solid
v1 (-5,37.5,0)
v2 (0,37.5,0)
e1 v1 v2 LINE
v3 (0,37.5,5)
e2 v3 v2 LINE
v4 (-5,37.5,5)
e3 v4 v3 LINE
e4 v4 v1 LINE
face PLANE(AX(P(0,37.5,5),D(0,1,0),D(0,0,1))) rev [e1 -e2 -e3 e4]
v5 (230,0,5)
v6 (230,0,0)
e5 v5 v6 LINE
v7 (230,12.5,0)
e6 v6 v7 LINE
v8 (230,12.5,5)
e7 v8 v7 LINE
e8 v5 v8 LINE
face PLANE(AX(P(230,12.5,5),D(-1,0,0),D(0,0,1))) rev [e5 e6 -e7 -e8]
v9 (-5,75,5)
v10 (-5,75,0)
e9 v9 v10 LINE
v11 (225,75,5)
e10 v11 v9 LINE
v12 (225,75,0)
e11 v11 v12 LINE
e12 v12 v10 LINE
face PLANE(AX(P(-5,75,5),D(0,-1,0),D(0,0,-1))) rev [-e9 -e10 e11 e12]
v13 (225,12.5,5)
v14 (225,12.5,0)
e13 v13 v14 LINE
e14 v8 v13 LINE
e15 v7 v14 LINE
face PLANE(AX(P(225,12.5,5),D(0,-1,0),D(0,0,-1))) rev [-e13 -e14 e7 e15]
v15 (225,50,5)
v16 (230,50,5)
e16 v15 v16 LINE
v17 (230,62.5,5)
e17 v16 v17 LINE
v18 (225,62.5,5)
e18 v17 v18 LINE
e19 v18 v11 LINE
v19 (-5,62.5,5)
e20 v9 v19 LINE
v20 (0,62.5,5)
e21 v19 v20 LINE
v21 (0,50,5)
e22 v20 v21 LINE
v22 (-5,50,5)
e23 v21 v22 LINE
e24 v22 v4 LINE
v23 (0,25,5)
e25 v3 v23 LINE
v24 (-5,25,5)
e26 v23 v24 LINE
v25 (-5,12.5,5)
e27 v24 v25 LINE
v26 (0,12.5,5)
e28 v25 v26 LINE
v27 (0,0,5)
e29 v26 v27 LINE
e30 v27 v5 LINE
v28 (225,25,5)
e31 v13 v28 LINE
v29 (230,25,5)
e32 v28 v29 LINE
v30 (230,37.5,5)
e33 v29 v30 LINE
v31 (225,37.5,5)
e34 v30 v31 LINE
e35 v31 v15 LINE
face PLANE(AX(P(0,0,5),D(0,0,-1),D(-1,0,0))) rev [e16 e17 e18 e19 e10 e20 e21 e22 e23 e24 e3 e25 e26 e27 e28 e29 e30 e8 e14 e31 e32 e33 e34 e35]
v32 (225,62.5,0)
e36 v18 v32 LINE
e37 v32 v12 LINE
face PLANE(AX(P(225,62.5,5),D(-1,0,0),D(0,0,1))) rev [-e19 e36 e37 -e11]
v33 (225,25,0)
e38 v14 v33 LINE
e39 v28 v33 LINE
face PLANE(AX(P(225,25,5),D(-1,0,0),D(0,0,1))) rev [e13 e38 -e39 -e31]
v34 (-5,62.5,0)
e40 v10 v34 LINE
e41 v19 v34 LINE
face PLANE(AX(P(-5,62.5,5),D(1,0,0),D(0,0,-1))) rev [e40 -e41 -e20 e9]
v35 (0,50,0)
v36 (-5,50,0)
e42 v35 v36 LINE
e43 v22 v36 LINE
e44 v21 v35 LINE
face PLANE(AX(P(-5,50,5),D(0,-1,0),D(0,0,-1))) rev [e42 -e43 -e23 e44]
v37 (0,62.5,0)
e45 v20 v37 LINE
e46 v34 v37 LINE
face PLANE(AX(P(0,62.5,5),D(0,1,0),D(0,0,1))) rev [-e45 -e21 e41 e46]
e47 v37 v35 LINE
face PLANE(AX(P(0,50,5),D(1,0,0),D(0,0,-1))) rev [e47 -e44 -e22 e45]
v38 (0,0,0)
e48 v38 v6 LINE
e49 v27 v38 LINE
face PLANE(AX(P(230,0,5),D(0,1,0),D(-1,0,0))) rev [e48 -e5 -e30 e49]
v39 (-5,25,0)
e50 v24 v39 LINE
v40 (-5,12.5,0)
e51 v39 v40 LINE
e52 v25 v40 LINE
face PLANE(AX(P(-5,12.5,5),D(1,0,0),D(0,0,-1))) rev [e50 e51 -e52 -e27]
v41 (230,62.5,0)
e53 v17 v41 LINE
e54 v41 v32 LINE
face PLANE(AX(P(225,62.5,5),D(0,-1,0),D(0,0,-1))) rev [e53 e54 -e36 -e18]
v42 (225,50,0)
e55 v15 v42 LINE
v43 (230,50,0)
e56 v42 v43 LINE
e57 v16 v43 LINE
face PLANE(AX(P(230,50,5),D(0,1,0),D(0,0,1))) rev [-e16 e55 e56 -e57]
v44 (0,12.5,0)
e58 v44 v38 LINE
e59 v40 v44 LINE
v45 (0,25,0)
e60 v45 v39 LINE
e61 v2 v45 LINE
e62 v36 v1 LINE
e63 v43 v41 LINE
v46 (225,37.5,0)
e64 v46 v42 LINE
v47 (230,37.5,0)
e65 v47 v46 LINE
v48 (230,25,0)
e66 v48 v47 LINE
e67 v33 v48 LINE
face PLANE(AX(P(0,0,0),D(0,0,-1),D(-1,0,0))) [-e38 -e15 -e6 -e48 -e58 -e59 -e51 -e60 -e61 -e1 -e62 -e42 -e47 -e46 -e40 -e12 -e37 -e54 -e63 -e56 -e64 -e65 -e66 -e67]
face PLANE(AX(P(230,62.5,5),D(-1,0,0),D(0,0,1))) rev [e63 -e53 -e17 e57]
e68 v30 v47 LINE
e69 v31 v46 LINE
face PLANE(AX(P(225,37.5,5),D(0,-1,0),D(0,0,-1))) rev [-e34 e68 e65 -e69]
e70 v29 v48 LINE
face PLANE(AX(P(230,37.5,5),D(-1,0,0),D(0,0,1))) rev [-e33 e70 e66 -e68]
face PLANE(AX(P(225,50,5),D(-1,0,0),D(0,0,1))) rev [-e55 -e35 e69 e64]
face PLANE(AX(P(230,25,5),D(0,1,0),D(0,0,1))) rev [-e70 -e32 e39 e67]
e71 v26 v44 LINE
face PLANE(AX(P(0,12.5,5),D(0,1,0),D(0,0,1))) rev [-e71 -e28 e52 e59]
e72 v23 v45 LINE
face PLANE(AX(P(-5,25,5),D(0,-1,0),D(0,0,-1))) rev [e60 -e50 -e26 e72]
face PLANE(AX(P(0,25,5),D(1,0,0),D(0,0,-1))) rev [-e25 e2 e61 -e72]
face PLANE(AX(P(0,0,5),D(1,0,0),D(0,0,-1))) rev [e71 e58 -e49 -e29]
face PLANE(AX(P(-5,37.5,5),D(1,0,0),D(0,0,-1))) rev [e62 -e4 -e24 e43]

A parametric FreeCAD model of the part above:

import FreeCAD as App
import Part
import Sketcher
from FreeCAD import Vector

doc = App.newDocument("Part")
body = doc.addObject("PartDesign::Body", "Body")

# Sketch on XY plane
sketch1 = body.newObject("Sketcher::SketchObject", "Sketch")
sketch1.AttachmentSupport = (doc.getObject("XY_Plane"), [""])
sketch1.MapMode = "FlatFace"
sketch1.addGeometry([
    Part.LineSegment(Vector(0, 12, 0), Vector(0, 0, 0)),  # 0
    Part.LineSegment(Vector(0, 0, 0), Vector(230, 0, 0)),  # 1
    Part.LineSegment(Vector(230, 0, 0), Vector(230, 12, 0)),  # 2
    Part.LineSegment(Vector(230, 12, 0), Vector(225, 12, 0)),  # 3
    Part.LineSegment(Vector(225, 12, 0), Vector(225, 25, 0)),  # 4
    Part.LineSegment(Vector(225, 25, 0), Vector(230, 25, 0)),  # 5
    Part.LineSegment(Vector(230, 25, 0), Vector(230, 38, 0)),  # 6
    Part.LineSegment(Vector(230, 38, 0), Vector(225, 38, 0)),  # 7
    Part.LineSegment(Vector(225, 38, 0), Vector(225, 50, 0)),  # 8
    Part.LineSegment(Vector(225, 50, 0), Vector(230, 50, 0)),  # 9
    Part.LineSegment(Vector(230, 50, 0), Vector(230, 62, 0)),  # 10
    Part.LineSegment(Vector(230, 62, 0), Vector(225, 62, 0)),  # 11
    Part.LineSegment(Vector(225, 62, 0), Vector(225, 75, 0)),  # 12
    Part.LineSegment(Vector(225, 75, 0), Vector(-5, 75, 0)),  # 13
    Part.LineSegment(Vector(-5, 75, 0), Vector(-5, 62, 0)),  # 14
    Part.LineSegment(Vector(-5, 62, 0), Vector(0, 62, 0)),  # 15
    Part.LineSegment(Vector(0, 62, 0), Vector(0, 50, 0)),  # 16
    Part.LineSegment(Vector(0, 50, 0), Vector(-5, 50, 0)),  # 17
    Part.LineSegment(Vector(-5, 50, 0), Vector(-5, 38, 0)),  # 18
    Part.LineSegment(Vector(-5, 38, 0), Vector(0, 38, 0)),  # 19
    Part.LineSegment(Vector(0, 38, 0), Vector(0, 25, 0)),  # 20
    Part.LineSegment(Vector(0, 25, 0), Vector(-5, 25, 0)),  # 21
    Part.LineSegment(Vector(-5, 25, 0), Vector(-5, 12, 0)),  # 22
    Part.LineSegment(Vector(-5, 12, 0), Vector(0, 12, 0)),  # 23
], False)
sketch1.addConstraint([
    Sketcher.Constraint("Coincident", 0, 2, 1, 1),
    Sketcher.Constraint("Coincident", 1, 2, 2, 1),
    Sketcher.Constraint("Coincident", 2, 2, 3, 1),
    Sketcher.Constraint("Coincident", 3, 2, 4, 1),
    Sketcher.Constraint("Coincident", 4, 2, 5, 1),
    Sketcher.Constraint("Coincident", 5, 2, 6, 1),
    Sketcher.Constraint("Coincident", 6, 2, 7, 1),
    Sketcher.Constraint("Coincident", 7, 2, 8, 1),
    Sketcher.Constraint("Coincident", 8, 2, 9, 1),
    Sketcher.Constraint("Coincident", 9, 2, 10, 1),
    Sketcher.Constraint("Coincident", 10, 2, 11, 1),
    Sketcher.Constraint("Coincident", 11, 2, 12, 1),
    Sketcher.Constraint("Coincident", 12, 2, 13, 1),
    Sketcher.Constraint("Coincident", 13, 2, 14, 1),
    Sketcher.Constraint("Coincident", 14, 2, 15, 1),
    Sketcher.Constraint("Coincident", 15, 2, 16, 1),
    Sketcher.Constraint("Coincident", 16, 2, 17, 1),
    Sketcher.Constraint("Coincident", 17, 2, 18, 1),
    Sketcher.Constraint("Coincident", 18, 2, 19, 1),
    Sketcher.Constraint("Coincident", 19, 2, 20, 1),
    Sketcher.Constraint("Coincident", 20, 2, 21, 1),
    Sketcher.Constraint("Coincident", 21, 2, 22, 1),
    Sketcher.Constraint("Coincident", 22, 2, 23, 1),
    Sketcher.Constraint("Coincident", 23, 2, 0, 1),
    Sketcher.Constraint("Vertical", 0),
    Sketcher.Constraint("Horizontal", 1),
    Sketcher.Constraint("Vertical", 2),
    Sketcher.Constraint("Horizontal", 3),
    Sketcher.Constraint("Vertical", 4),
    Sketcher.Constraint("Horizontal", 5),
    Sketcher.Constraint("Vertical", 6),
    Sketcher.Constraint("Horizontal", 7),
    Sketcher.Constraint("Vertical", 8),
    Sketcher.Constraint("Horizontal", 9),
    Sketcher.Constraint("Vertical", 10),
    Sketcher.Constraint("Horizontal", 11),
    Sketcher.Constraint("Vertical", 12),
    Sketcher.Constraint("Horizontal", 13),
    Sketcher.Constraint("Vertical", 14),
    Sketcher.Constraint("Horizontal", 15),
    Sketcher.Constraint("Vertical", 16),
    Sketcher.Constraint("Horizontal", 17),
    Sketcher.Constraint("Vertical", 18),
    Sketcher.Constraint("Horizontal", 19),
    Sketcher.Constraint("Vertical", 20),
    Sketcher.Constraint("Horizontal", 21),
    Sketcher.Constraint("Vertical", 22),
    Sketcher.Constraint("Horizontal", 23),
    Sketcher.Constraint("Coincident", 0, 2, -1, 1),
    Sketcher.Constraint("PointOnObject", 15, 2, -2),
    Sketcher.Constraint("PointOnObject", 19, 2, -2),
    Sketcher.Constraint("Horizontal", 11, 2, 14, 2),
    Sketcher.Constraint("Horizontal", 9, 2, 16, 2),
    Sketcher.Constraint("Horizontal", 7, 2, 18, 2),
    Sketcher.Constraint("Horizontal", 5, 2, 20, 2),
    Sketcher.Constraint("Horizontal", 3, 2, 22, 2),
    Sketcher.Constraint("Vertical", 2, 2, 5, 2),
    Sketcher.Constraint("Vertical", 4, 2, 7, 2),
    Sketcher.Constraint("Vertical", 6, 2, 9, 2),
    Sketcher.Constraint("Vertical", 8, 2, 11, 2),
    Sketcher.Constraint("Vertical", 14, 2, 17, 2),
    Sketcher.Constraint("Vertical", 18, 2, 21, 2),
    Sketcher.Constraint("Equal", 1, 13),
    Sketcher.Constraint("Equal", 2, 4),
    Sketcher.Constraint("Equal", 4, 6),
    Sketcher.Constraint("Equal", 6, 8),
    Sketcher.Constraint("Equal", 8, 10),
    Sketcher.Constraint("Equal", 10, 12),
    Sketcher.Constraint("DistanceX", 1, 1, 1, 2, 230.0),
    Sketcher.Constraint("DistanceX", 3, 2, 3, 1, 5.0),
    Sketcher.Constraint("DistanceY", 0, 2, 0, 1, 12.5),
])
pad1 = body.newObject("PartDesign::Pad", "Pad")
pad1.Profile = sketch1
pad1.Length = 5

doc.recompute()
